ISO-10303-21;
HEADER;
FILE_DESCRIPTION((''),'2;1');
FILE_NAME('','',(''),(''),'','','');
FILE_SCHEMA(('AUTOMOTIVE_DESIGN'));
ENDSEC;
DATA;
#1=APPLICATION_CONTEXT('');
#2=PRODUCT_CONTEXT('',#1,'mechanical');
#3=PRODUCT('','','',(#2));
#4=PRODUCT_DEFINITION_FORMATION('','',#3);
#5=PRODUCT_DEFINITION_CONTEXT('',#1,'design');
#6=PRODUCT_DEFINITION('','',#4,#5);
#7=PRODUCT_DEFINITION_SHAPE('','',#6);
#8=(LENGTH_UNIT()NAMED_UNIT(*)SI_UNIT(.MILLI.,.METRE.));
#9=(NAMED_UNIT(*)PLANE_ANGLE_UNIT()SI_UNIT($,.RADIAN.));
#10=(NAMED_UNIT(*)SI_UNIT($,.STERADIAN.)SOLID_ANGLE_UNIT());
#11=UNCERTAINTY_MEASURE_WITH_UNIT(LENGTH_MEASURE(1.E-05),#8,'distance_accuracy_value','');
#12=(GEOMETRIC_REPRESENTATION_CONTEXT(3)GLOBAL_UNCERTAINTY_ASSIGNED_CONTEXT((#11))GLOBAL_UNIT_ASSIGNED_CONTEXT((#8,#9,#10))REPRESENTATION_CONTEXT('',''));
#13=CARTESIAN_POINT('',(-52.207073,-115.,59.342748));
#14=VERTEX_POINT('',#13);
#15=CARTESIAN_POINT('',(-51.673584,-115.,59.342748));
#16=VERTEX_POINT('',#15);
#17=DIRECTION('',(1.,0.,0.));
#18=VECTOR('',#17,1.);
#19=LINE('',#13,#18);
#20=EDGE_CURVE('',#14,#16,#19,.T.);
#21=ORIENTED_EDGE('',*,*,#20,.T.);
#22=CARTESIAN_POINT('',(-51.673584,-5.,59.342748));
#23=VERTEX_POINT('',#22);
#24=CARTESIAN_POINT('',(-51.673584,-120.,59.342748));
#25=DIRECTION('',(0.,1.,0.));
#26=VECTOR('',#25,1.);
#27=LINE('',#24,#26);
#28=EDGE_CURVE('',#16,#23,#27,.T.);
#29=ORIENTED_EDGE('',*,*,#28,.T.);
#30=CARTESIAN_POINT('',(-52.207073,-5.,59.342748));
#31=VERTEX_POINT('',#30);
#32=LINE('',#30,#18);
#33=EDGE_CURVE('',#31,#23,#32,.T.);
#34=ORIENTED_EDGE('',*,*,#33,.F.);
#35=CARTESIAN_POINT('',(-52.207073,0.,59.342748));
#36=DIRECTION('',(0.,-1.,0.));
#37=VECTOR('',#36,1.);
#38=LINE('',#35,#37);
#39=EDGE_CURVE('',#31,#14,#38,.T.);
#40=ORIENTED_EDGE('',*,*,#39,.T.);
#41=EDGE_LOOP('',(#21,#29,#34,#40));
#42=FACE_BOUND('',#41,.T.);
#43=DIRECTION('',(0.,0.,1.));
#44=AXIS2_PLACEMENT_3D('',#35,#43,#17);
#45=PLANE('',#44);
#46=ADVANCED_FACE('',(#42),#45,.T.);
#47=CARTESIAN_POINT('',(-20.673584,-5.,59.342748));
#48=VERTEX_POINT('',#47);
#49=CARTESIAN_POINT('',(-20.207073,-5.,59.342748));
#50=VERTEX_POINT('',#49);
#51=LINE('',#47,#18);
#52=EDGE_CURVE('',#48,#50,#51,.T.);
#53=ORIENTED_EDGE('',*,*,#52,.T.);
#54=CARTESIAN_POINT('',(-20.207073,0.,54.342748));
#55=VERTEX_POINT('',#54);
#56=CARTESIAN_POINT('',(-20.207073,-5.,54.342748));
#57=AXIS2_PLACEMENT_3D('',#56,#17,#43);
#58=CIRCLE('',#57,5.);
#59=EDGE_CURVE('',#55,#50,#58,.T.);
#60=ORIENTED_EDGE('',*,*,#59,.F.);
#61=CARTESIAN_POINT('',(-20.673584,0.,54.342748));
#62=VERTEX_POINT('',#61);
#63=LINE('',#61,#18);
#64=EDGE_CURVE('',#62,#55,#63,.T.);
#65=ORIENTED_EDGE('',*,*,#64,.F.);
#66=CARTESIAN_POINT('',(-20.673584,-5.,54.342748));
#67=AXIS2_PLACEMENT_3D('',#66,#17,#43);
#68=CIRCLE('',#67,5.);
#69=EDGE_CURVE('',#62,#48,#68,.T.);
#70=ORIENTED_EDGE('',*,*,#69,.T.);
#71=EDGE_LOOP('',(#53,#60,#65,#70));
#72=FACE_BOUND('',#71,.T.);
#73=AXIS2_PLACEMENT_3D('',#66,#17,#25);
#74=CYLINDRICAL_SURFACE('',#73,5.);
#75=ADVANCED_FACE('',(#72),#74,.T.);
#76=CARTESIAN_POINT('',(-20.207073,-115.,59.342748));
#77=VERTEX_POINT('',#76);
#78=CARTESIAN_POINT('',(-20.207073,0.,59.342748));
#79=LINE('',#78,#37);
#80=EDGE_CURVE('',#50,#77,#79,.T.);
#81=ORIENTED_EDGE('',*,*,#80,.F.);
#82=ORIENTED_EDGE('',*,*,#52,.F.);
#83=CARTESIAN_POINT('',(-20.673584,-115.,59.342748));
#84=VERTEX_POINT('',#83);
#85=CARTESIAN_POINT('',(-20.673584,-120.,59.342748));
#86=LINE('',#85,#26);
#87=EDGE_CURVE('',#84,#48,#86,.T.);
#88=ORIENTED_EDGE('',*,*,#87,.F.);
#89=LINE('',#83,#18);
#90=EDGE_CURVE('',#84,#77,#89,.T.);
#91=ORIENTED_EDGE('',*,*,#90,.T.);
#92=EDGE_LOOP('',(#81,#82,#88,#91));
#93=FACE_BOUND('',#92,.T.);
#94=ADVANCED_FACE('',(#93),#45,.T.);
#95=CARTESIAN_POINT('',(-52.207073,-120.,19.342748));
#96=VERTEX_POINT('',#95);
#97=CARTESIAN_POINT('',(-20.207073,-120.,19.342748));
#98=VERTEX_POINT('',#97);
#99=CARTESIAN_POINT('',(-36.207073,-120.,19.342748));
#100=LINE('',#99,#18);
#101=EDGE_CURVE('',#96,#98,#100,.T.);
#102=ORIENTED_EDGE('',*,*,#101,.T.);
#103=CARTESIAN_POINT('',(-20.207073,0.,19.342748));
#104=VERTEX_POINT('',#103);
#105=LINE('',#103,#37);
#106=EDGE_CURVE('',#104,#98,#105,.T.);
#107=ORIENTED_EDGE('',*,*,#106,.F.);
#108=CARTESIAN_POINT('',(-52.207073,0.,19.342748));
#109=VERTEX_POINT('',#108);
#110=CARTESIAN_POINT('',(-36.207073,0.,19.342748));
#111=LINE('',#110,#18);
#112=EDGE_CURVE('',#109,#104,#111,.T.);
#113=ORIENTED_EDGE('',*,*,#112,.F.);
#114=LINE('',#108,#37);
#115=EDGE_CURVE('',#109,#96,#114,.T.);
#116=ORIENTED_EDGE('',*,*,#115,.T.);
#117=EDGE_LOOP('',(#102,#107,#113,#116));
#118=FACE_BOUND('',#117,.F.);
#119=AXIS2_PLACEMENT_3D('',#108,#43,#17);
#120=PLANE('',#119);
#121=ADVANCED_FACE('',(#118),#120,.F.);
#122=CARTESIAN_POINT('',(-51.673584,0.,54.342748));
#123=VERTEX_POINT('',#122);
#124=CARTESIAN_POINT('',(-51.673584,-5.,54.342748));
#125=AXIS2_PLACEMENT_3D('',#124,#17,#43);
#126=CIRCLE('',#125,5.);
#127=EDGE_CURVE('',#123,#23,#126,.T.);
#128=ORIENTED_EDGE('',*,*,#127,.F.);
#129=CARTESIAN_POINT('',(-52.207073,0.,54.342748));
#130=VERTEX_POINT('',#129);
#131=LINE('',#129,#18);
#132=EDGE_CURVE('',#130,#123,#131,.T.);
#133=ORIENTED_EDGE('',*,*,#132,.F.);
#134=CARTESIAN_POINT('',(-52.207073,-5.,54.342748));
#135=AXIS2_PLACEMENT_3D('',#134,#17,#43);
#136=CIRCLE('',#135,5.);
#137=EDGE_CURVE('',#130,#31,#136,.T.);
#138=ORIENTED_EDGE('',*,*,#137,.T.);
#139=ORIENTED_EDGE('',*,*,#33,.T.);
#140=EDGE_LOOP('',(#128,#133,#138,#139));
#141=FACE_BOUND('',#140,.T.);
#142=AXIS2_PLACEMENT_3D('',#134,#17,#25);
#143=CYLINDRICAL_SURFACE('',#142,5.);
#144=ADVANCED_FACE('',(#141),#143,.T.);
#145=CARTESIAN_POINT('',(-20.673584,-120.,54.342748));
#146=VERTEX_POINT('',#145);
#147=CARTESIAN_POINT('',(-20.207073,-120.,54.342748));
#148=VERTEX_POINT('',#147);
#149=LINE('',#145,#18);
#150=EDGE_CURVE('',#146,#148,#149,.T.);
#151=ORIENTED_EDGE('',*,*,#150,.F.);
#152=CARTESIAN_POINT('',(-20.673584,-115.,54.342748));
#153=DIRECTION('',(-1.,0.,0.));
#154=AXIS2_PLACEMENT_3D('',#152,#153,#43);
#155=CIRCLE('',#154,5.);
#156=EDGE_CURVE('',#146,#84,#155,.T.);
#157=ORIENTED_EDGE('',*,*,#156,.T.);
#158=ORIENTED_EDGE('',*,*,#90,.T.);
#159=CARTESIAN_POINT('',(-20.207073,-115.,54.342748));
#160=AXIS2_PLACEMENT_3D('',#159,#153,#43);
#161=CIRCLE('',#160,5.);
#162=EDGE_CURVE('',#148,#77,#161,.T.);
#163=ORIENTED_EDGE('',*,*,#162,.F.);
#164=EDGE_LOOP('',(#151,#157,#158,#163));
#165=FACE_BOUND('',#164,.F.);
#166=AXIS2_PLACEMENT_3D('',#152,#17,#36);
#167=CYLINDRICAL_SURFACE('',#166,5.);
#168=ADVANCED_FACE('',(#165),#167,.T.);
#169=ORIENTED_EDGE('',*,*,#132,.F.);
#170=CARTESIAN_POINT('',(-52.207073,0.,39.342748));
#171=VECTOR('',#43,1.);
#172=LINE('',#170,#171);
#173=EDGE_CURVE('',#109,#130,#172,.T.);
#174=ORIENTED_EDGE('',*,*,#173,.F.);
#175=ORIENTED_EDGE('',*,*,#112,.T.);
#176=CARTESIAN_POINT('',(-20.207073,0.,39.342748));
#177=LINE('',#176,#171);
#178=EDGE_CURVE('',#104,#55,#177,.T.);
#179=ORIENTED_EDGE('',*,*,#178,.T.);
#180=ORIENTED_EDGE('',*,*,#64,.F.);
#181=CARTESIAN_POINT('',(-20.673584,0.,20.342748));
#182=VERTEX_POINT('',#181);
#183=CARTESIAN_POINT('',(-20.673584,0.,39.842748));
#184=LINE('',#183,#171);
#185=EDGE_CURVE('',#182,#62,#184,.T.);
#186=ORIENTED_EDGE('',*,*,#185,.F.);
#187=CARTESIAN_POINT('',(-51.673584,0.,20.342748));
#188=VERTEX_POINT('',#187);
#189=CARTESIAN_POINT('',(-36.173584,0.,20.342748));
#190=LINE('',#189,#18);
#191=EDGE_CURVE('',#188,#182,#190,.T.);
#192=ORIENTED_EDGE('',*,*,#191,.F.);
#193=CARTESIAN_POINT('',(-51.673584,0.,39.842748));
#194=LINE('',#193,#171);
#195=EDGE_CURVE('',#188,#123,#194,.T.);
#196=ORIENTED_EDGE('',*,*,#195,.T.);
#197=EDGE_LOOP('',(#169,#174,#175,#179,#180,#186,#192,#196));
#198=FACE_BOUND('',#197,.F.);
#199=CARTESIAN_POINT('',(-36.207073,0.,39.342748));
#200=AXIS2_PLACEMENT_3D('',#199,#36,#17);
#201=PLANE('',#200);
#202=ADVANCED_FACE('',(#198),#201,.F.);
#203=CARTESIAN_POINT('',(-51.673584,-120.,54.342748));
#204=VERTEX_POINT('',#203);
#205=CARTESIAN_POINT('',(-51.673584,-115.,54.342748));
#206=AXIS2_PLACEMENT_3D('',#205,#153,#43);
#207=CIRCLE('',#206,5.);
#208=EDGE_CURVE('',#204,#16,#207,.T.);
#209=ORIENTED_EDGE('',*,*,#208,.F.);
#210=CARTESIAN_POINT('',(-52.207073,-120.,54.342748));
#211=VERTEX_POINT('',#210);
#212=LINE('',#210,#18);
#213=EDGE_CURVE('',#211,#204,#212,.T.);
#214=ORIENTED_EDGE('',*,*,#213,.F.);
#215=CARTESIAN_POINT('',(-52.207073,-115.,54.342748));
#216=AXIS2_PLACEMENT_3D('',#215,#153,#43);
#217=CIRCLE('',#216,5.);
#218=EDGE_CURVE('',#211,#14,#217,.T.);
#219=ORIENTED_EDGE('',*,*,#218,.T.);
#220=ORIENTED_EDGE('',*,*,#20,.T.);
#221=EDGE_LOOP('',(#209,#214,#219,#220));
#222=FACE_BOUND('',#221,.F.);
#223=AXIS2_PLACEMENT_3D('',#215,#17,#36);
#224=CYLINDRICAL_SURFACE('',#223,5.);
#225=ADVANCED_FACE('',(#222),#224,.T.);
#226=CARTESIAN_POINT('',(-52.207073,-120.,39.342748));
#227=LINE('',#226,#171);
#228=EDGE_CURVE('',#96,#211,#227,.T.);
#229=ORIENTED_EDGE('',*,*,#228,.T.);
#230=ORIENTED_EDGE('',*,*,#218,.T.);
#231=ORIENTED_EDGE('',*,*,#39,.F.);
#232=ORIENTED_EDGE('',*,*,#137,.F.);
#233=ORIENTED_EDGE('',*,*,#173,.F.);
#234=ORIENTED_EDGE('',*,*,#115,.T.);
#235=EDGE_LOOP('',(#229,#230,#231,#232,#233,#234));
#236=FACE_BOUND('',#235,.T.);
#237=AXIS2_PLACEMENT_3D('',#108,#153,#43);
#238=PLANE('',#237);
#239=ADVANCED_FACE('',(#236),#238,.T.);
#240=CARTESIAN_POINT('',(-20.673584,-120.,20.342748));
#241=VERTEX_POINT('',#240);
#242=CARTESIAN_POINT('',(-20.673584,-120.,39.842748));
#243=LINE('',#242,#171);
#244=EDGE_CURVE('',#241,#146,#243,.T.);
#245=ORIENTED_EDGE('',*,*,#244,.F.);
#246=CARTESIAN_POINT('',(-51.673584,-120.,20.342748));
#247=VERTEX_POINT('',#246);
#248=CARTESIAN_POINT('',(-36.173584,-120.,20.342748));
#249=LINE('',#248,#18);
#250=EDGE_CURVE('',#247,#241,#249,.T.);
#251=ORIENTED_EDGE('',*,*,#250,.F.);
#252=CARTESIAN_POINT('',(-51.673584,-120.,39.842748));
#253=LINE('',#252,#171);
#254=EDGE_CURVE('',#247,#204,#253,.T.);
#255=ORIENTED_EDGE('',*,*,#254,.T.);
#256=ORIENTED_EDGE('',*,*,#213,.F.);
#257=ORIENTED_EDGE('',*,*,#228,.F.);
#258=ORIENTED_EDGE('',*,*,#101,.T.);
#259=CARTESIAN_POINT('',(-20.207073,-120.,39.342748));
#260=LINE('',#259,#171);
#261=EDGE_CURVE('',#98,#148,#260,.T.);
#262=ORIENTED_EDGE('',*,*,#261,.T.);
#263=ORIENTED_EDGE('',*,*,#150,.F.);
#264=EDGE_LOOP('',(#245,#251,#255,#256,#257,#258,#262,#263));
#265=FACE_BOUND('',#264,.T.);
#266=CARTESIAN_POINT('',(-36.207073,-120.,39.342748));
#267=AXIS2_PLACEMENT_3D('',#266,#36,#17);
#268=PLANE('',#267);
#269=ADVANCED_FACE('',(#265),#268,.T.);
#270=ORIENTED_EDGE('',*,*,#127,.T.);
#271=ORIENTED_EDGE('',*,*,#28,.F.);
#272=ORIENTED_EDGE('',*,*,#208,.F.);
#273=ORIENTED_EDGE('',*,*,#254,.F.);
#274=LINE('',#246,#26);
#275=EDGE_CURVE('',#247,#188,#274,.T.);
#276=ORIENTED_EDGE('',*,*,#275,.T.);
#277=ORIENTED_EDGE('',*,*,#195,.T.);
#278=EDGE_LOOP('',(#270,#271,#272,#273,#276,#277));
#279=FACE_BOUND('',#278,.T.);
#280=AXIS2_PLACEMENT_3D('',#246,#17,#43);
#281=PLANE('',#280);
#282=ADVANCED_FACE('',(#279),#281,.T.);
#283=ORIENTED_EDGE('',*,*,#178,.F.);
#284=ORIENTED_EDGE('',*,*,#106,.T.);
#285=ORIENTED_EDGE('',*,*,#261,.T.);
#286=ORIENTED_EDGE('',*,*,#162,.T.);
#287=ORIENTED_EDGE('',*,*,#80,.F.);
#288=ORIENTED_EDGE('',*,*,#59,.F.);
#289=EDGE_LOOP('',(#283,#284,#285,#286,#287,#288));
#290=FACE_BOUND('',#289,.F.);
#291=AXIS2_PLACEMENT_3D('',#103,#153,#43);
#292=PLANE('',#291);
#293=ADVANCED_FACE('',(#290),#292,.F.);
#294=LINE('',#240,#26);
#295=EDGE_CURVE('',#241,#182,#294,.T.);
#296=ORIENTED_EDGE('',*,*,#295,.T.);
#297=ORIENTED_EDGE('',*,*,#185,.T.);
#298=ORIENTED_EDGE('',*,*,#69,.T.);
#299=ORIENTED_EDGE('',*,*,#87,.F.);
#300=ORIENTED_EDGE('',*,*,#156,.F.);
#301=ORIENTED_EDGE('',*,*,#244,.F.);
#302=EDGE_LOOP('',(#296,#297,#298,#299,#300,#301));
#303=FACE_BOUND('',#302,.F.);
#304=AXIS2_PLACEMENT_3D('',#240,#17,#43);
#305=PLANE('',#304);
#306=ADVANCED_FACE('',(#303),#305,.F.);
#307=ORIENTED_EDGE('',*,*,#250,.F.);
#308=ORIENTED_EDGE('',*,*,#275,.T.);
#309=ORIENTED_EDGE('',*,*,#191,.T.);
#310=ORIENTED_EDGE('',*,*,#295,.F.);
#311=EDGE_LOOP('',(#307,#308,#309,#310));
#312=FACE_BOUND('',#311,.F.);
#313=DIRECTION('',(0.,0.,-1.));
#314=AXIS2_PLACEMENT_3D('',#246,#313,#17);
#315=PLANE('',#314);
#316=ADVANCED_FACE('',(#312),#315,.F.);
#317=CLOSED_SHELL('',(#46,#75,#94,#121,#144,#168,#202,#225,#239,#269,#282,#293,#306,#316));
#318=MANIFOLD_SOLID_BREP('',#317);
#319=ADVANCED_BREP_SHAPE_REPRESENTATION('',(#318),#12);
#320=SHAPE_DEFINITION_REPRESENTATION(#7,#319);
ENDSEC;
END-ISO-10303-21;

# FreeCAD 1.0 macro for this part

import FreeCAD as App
import Part
import Sketcher
from FreeCAD import Vector
Q = App.Units.Quantity


def edges_at(feature, points):
    """Names of the edges that pass closest to the given points."""
    edges = feature.Shape.Edges
    near = lambda p: min(range(len(edges)), key=lambda i: edges[i].distToShape(Part.Vertex(*p))[0])
    return sorted({f"Edge{near(p) + 1}" for p in points})

doc = App.newDocument("Part")
params = doc.addObject("Spreadsheet::Sheet", "Params")
for row, (alias, value) in enumerate([
    ("sketch1_width", "32 mm"),
    ("sketch1_height", "40 mm"),
    ("pad1_length", "120 mm"),
    ("sketch2_width", "31 mm"),
    ("sketch2_height", "39 mm"),
    ("pocket1_length", "120 mm"),
    ("fillet_radius", "5 mm"),
    ("fillet2_radius", "5 mm"),
    ("fillet3_radius", "5 mm"),
    ("fillet4_radius", "5 mm"),
], start=1):
    params.set(f"A{row}", alias)
    params.set(f"B{row}", "=" + value)
    params.setAlias(f"B{row}", alias)

body = doc.addObject("PartDesign::Body", "Body")

sketch1 = body.newObject("Sketcher::SketchObject", "Sketch")
sketch1.AttachmentSupport = (doc.getObject("XZ_Plane"), [""])
sketch1.MapMode = "FlatFace"
sketch1.addGeometry([
    Part.LineSegment(Vector(-52, 59, 0), Vector(-52, 19, 0)),
    Part.LineSegment(Vector(-52, 19, 0), Vector(-20, 19, 0)),
    Part.LineSegment(Vector(-20, 19, 0), Vector(-20, 59, 0)),
    Part.LineSegment(Vector(-20, 59, 0), Vector(-52, 59, 0)),
], False)
sketch1.addConstraint([
    Sketcher.Constraint("Coincident", 0, 2, 1, 1),
    Sketcher.Constraint("Coincident", 1, 2, 2, 1),
    Sketcher.Constraint("Coincident", 2, 2, 3, 1),
    Sketcher.Constraint("Coincident", 3, 2, 0, 1),
    Sketcher.Constraint("Vertical", 0),
    Sketcher.Constraint("Horizontal", 1),
    Sketcher.Constraint("Vertical", 2),
    Sketcher.Constraint("Horizontal", 3),
    Sketcher.Constraint("DistanceX", 1, 1, 1, 2, Q("32 mm")),
    Sketcher.Constraint("DistanceY", 0, 2, 0, 1, Q("40 mm")),
    Sketcher.Constraint("DistanceY", -1, 1, 0, 2, Q("19.342748 mm")),
    Sketcher.Constraint("DistanceX", 0, 2, -1, 1, Q("52.207073 mm")),
])
sketch1.setExpression("Constraints[8]", "Params.sketch1_width")
sketch1.setExpression("Constraints[9]", "Params.sketch1_height")
pad1 = body.newObject("PartDesign::Pad", "Pad")
pad1.Profile = sketch1
pad1.setExpression("Length", "Params.pad1_length")

sketch2 = body.newObject("Sketcher::SketchObject", "Sketch001")
sketch2.AttachmentSupport = (doc.getObject("XZ_Plane"), [""])
sketch2.MapMode = "FlatFace"
sketch2.AttachmentOffset = App.Placement(Vector(0, 0, 120), App.Rotation())
sketch2.addGeometry([
    Part.LineSegment(Vector(-52, 59, 0), Vector(-52, 20, 0)),
    Part.LineSegment(Vector(-52, 20, 0), Vector(-21, 20, 0)),
    Part.LineSegment(Vector(-21, 20, 0), Vector(-21, 59, 0)),
    Part.LineSegment(Vector(-21, 59, 0), Vector(-52, 59, 0)),
], False)
sketch2.addConstraint([
    Sketcher.Constraint("Coincident", 0, 2, 1, 1),
    Sketcher.Constraint("Coincident", 1, 2, 2, 1),
    Sketcher.Constraint("Coincident", 2, 2, 3, 1),
    Sketcher.Constraint("Coincident", 3, 2, 0, 1),
    Sketcher.Constraint("Vertical", 0),
    Sketcher.Constraint("Horizontal", 1),
    Sketcher.Constraint("Vertical", 2),
    Sketcher.Constraint("Horizontal", 3),
    Sketcher.Constraint("DistanceX", 1, 1, 1, 2, Q("31 mm")),
    Sketcher.Constraint("DistanceY", 0, 2, 0, 1, Q("39 mm")),
    Sketcher.Constraint("DistanceY", -1, 1, 0, 2, Q("20.342748 mm")),
    Sketcher.Constraint("DistanceX", 0, 2, -1, 1, Q("51.673584 mm")),
])
sketch2.setExpression("Constraints[8]", "Params.sketch2_width")
sketch2.setExpression("Constraints[9]", "Params.sketch2_height")
pocket1 = body.newObject("PartDesign::Pocket", "Pocket")
pocket1.Profile = sketch2
pocket1.setExpression("Length", "Params.pocket1_length")
doc.recompute()

fillet = body.newObject("PartDesign::Fillet", "Fillet")
fillet.Base = (pocket1, edges_at(pocket1, [(-20.44, -120, 59.343)]))
fillet.setExpression("Radius", "Params.fillet_radius")
doc.recompute()

fillet2 = body.newObject("PartDesign::Fillet", "Fillet001")
fillet2.Base = (fillet, edges_at(fillet, [(-51.94, -120, 59.343)]))
fillet2.setExpression("Radius", "Params.fillet2_radius")
doc.recompute()

fillet3 = body.newObject("PartDesign::Fillet", "Fillet002")
fillet3.Base = (fillet2, edges_at(fillet2, [(-20.44, 0, 59.343)]))
fillet3.setExpression("Radius", "Params.fillet3_radius")
doc.recompute()

fillet4 = body.newObject("PartDesign::Fillet", "Fillet003")
fillet4.Base = (fillet3, edges_at(fillet3, [(-51.94, 0, 59.343)]))
fillet4.setExpression("Radius", "Params.fillet4_radius")

doc.recompute()
